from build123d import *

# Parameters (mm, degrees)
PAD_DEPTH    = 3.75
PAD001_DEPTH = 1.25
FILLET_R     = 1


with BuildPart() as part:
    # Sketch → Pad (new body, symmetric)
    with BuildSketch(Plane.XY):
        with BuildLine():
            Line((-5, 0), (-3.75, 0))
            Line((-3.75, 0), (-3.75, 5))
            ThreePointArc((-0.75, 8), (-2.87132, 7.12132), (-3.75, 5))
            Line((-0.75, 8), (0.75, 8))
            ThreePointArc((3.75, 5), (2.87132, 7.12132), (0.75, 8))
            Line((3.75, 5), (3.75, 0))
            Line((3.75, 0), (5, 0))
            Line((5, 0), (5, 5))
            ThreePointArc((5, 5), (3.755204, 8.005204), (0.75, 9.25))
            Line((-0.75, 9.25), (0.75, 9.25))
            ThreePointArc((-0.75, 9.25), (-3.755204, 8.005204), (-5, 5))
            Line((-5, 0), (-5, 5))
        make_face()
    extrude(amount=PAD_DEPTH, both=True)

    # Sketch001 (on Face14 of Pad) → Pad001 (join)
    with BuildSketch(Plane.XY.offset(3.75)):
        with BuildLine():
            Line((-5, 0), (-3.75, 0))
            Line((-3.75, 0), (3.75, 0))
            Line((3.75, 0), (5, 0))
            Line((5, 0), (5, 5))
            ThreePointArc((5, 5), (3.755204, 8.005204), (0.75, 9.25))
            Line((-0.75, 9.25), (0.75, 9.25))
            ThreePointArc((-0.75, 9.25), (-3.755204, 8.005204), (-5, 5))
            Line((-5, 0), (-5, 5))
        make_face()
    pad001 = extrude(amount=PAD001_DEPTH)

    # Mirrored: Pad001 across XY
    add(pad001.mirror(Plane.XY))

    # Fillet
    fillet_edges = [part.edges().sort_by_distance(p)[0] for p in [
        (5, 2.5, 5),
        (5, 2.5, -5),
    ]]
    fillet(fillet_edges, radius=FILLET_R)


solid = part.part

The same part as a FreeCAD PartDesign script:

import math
import FreeCAD as App
import Part
import Sketcher
from FreeCAD import Vector
Q = App.Units.Quantity


def edges_at(feature, points):
    """Names of the edges that pass closest to the given points."""
    edges = feature.Shape.Edges
    near = lambda p: min(range(len(edges)), key=lambda i: edges[i].distToShape(Part.Vertex(*p))[0])
    return sorted({f"Edge{near(p) + 1}" for p in points})

doc = App.newDocument("Part")
body = doc.addObject("PartDesign::Body", "Body")

sketch1 = doc.addObject("Sketcher::SketchObject", "Sketch")
body.addObject(sketch1)
sketch1.AttachmentSupport = (doc.XY_Plane, [""])
sketch1.MapMode = "FlatFace"
sketch1.addGeometry(Part.LineSegment(Vector(-5, 0, 0), Vector(-3.75, 0, 0)), False)
sketch1.addGeometry(Part.LineSegment(Vector(-3.75, 0, 0), Vector(-3.75, 5, 0)), False)
sketch1.addGeometry(Part.ArcOfCircle(Part.Circle(Vector(-0.749999, 4.999999, 0), Vector(0, 0, 1), 3.000001), math.radians(90.000022), math.radians(179.999978)), False)
sketch1.addGeometry(Part.LineSegment(Vector(-0.75, 8, 0), Vector(0.75, 8, 0)), False)
sketch1.addGeometry(Part.ArcOfCircle(Part.Circle(Vector(0.749999, 4.999999, 0), Vector(0, 0, 1), 3.000001), math.radians(0.000022), math.radians(89.999978)), False)
sketch1.addGeometry(Part.LineSegment(Vector(3.75, 5, 0), Vector(3.75, 0, 0)), False)
sketch1.addGeometry(Part.LineSegment(Vector(3.75, 0, 0), Vector(5, 0, 0)), False)
sketch1.addGeometry(Part.LineSegment(Vector(5, 0, 0), Vector(5, 5, 0)), False)
sketch1.addGeometry(Part.ArcOfCircle(Part.Circle(Vector(0.750001, 5.000001, 0), Vector(0, 0, 1), 4.249999), math.radians(-0.000008), math.radians(90.000008)), False)
sketch1.addGeometry(Part.LineSegment(Vector(0.75, 9.25, 0), Vector(-0.75, 9.25, 0)), False)
sketch1.addGeometry(Part.ArcOfCircle(Part.Circle(Vector(-0.750001, 5.000001, 0), Vector(0, 0, 1), 4.249999), math.radians(89.999992), math.radians(180.000008)), False)
sketch1.addGeometry(Part.LineSegment(Vector(-5, 5, 0), Vector(-5, 0, 0)), False)
sketch1.addConstraint(Sketcher.Constraint("Coincident", 0, 2, 1, 1))
sketch1.addConstraint(Sketcher.Constraint("Tangent", 1, 2, 2, 2))
sketch1.addConstraint(Sketcher.Constraint("Tangent", 2, 1, 3, 1))
sketch1.addConstraint(Sketcher.Constraint("Tangent", 3, 2, 4, 2))
sketch1.addConstraint(Sketcher.Constraint("Tangent", 4, 1, 5, 1))
sketch1.addConstraint(Sketcher.Constraint("Coincident", 5, 2, 6, 1))
sketch1.addConstraint(Sketcher.Constraint("Coincident", 6, 2, 7, 1))
sketch1.addConstraint(Sketcher.Constraint("Tangent", 7, 2, 8, 1))
sketch1.addConstraint(Sketcher.Constraint("Tangent", 8, 2, 9, 1))
sketch1.addConstraint(Sketcher.Constraint("Tangent", 9, 2, 10, 1))
sketch1.addConstraint(Sketcher.Constraint("Tangent", 10, 2, 11, 1))
sketch1.addConstraint(Sketcher.Constraint("Coincident", 11, 2, 0, 1))
sketch1.addConstraint(Sketcher.Constraint("Horizontal", 0))
sketch1.addConstraint(Sketcher.Constraint("Vertical", 1))
sketch1.addConstraint(Sketcher.Constraint("Horizontal", 3))
sketch1.addConstraint(Sketcher.Constraint("Vertical", 5))
sketch1.addConstraint(Sketcher.Constraint("Horizontal", 6))
sketch1.addConstraint(Sketcher.Constraint("Vertical", 7))
sketch1.addConstraint(Sketcher.Constraint("Horizontal", 9))
sketch1.addConstraint(Sketcher.Constraint("Vertical", 11))
sketch1.addConstraint(Sketcher.Constraint("Coincident", 8, 3, 4, 3))
sketch1.addConstraint(Sketcher.Constraint("Coincident", 10, 3, 2, 3))
sketch1.addConstraint(Sketcher.Constraint("Equal", 2, 4))
sketch1.addConstraint(Sketcher.Constraint("Symmetric", 0, 2, 5, 2, -1, 1))
sketch1.addConstraint(Sketcher.Constraint("PointOnObject", 0, 2, -1))
sketch1.addConstraint(Sketcher.Constraint("Radius", 2, Q("3.000001 mm")))
sketch1.addConstraint(Sketcher.Constraint("DistanceY", 1, 1, 1, 2, Q("5 mm")))
sketch1.addConstraint(Sketcher.Constraint("Radius", 8, Q("4.249999 mm")))
sketch1.addConstraint(Sketcher.Constraint("DistanceX", 3, 1, 3, 2, Q("1.5 mm")))
pad1 = doc.addObject("PartDesign::Pad", "Pad")
body.addObject(pad1)
pad1.Profile = sketch1
pad1.Length = 7.5
pad1.Midplane = True

sketch2 = doc.addObject("Sketcher::SketchObject", "Sketch001")
body.addObject(sketch2)
sketch2.AttachmentSupport = (doc.XY_Plane, [""])
sketch2.MapMode = "FlatFace"
sketch2.AttachmentOffset = App.Placement(Vector(0, 0, 3.75), App.Rotation())
sketch2.addGeometry(Part.LineSegment(Vector(-5, 0, 0), Vector(5, 0, 0)), False)
sketch2.addGeometry(Part.LineSegment(Vector(5, 0, 0), Vector(5, 5, 0)), False)
sketch2.addGeometry(Part.ArcOfCircle(Part.Circle(Vector(0.750001, 5.000001, 0), Vector(0, 0, 1), 4.249999), math.radians(-0.000008), math.radians(90.000008)), False)
sketch2.addGeometry(Part.LineSegment(Vector(0.75, 9.25, 0), Vector(-0.75, 9.25, 0)), False)
sketch2.addGeometry(Part.ArcOfCircle(Part.Circle(Vector(-0.750001, 5.000001, 0), Vector(0, 0, 1), 4.249999), math.radians(89.999992), math.radians(180.000008)), False)
sketch2.addGeometry(Part.LineSegment(Vector(-5, 5, 0), Vector(-5, 0, 0)), False)
sketch2.addConstraint(Sketcher.Constraint("Coincident", 0, 2, 1, 1))
sketch2.addConstraint(Sketcher.Constraint("Tangent", 1, 2, 2, 1))
sketch2.addConstraint(Sketcher.Constraint("Tangent", 2, 2, 3, 1))
sketch2.addConstraint(Sketcher.Constraint("Tangent", 3, 2, 4, 1))
sketch2.addConstraint(Sketcher.Constraint("Tangent", 4, 2, 5, 1))
sketch2.addConstraint(Sketcher.Constraint("Coincident", 5, 2, 0, 1))
sketch2.addConstraint(Sketcher.Constraint("Horizontal", 0))
sketch2.addConstraint(Sketcher.Constraint("Vertical", 1))
sketch2.addConstraint(Sketcher.Constraint("Horizontal", 3))
sketch2.addConstraint(Sketcher.Constraint("Vertical", 5))
sketch2.addConstraint(Sketcher.Constraint("Equal", 2, 4))
sketch2.addConstraint(Sketcher.Constraint("Symmetric", 0, 2, 5, 2, -1, 1))
sketch2.addConstraint(Sketcher.Constraint("DistanceX", 0, 1, 0, 2, Q("10 mm")))
sketch2.addConstraint(Sketcher.Constraint("DistanceY", 1, 1, 1, 2, Q("5 mm")))
sketch2.addConstraint(Sketcher.Constraint("Radius", 2, Q("4.249999 mm")))
pad2 = doc.addObject("PartDesign::Pad", "Pad001")
body.addObject(pad2)
pad2.Profile = sketch2
pad2.Length = 1.25
doc.recompute()

mirrored = doc.addObject("PartDesign::Mirrored", "Mirrored")
body.addObject(mirrored)
mirrored.Originals = [pad2]
mirrored.MirrorPlane = (doc.XY_Plane, [""])
body.Tip = mirrored
doc.recompute()

fillet = doc.addObject("PartDesign::Fillet", "Fillet")
body.addObject(fillet)
fillet.Base = (mirrored, edges_at(mirrored, [(5, 2.5, 5), (5, 2.5, -5)]))
fillet.Radius = 1

doc.recompute()
